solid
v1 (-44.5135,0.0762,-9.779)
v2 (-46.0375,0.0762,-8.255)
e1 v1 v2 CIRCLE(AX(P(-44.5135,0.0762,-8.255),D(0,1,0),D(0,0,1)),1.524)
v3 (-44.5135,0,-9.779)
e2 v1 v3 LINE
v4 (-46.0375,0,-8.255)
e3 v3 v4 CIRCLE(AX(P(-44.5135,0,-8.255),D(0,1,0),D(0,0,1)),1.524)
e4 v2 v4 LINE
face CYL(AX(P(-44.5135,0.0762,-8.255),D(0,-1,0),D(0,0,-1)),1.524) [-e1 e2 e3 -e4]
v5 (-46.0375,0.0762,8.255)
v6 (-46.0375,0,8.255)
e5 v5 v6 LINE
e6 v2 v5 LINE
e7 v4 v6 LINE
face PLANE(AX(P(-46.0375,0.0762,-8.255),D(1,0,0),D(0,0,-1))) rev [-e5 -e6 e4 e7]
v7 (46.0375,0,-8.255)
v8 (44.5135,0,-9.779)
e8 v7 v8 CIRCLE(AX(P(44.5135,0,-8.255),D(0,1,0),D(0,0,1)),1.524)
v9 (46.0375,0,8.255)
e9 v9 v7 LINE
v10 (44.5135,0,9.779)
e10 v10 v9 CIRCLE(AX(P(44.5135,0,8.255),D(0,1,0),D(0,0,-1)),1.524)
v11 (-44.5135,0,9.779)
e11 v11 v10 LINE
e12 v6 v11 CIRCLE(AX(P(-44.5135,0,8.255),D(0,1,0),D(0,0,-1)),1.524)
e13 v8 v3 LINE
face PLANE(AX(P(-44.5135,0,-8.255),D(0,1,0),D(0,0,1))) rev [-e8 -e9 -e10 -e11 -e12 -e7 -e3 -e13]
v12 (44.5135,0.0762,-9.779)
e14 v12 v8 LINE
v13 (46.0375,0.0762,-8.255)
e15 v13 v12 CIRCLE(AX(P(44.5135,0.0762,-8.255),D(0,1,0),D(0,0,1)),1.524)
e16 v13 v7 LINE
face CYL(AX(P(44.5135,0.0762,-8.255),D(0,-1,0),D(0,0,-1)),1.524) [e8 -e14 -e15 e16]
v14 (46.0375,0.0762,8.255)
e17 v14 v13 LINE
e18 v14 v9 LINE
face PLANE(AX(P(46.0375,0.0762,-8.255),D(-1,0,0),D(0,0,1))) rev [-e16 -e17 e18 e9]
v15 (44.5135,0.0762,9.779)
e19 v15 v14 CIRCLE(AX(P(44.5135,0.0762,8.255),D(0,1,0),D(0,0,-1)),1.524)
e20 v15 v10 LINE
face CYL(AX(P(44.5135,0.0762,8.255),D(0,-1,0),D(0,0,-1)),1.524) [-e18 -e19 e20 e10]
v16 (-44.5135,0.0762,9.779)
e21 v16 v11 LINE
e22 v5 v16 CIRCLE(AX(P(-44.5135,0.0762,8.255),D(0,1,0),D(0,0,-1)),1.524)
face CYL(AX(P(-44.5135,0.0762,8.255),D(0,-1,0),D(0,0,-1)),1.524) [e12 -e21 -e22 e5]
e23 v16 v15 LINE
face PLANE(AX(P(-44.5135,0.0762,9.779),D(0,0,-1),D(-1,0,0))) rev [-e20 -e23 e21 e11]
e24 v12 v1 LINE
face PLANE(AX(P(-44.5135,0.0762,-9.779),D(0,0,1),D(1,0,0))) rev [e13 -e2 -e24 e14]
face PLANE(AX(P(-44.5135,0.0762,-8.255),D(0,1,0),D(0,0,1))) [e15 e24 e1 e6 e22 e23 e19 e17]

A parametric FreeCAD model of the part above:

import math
import FreeCAD as App
import Part
import Sketcher

V = App.Vector
Q = App.Units.Quantity

doc = App.newDocument("Part")
body = doc.addObject("PartDesign::Body", "Body")

sketch1 = body.newObject("Sketcher::SketchObject", "Sketch")
sketch1.AttachmentSupport = (doc.getObject("XZ_Plane"), [""])
sketch1.MapMode = "FlatFace"
sketch1.addGeometry(Part.LineSegment(V(44.5, -9.8, 0), V(-44.5, -9.8, 0)), False)
sketch1.addGeometry(Part.ArcOfCircle(Part.Circle(V(-44.5, -8.3, 0), V(0, 0, 1), 1.5), math.radians(180), math.radians(270)), False)
sketch1.addGeometry(Part.LineSegment(V(-46, -8.3, 0), V(-46, 8.3, 0)), False)
sketch1.addGeometry(Part.ArcOfCircle(Part.Circle(V(-44.5, 8.3, 0), V(0, 0, 1), 1.5), math.radians(90), math.radians(180)), False)
sketch1.addGeometry(Part.LineSegment(V(-44.5, 9.8, 0), V(44.5, 9.8, 0)), False)
sketch1.addGeometry(Part.ArcOfCircle(Part.Circle(V(44.5, 8.3, 0), V(0, 0, 1), 1.5), math.radians(0), math.radians(90)), False)
sketch1.addGeometry(Part.LineSegment(V(46, 8.3, 0), V(46, -8.3, 0)), False)
sketch1.addGeometry(Part.ArcOfCircle(Part.Circle(V(44.5, -8.3, 0), V(0, 0, 1), 1.5), math.radians(-90), math.radians(0)), False)
sketch1.addConstraint(Sketcher.Constraint("Tangent", 0, 2, 1, 2))
sketch1.addConstraint(Sketcher.Constraint("Tangent", 1, 1, 2, 1))
sketch1.addConstraint(Sketcher.Constraint("Tangent", 2, 2, 3, 2))
sketch1.addConstraint(Sketcher.Constraint("Tangent", 3, 1, 4, 1))
sketch1.addConstraint(Sketcher.Constraint("Tangent", 4, 2, 5, 2))
sketch1.addConstraint(Sketcher.Constraint("Tangent", 5, 1, 6, 1))
sketch1.addConstraint(Sketcher.Constraint("Tangent", 6, 2, 7, 2))
sketch1.addConstraint(Sketcher.Constraint("Tangent", 7, 1, 0, 1))
sketch1.addConstraint(Sketcher.Constraint("Horizontal", 0))
sketch1.addConstraint(Sketcher.Constraint("Vertical", 2))
sketch1.addConstraint(Sketcher.Constraint("Horizontal", 4))
sketch1.addConstraint(Sketcher.Constraint("Vertical", 6))
sketch1.addConstraint(Sketcher.Constraint("Equal", 1, 3))
sketch1.addConstraint(Sketcher.Constraint("Equal", 3, 5))
sketch1.addConstraint(Sketcher.Constraint("Equal", 5, 7))
sketch1.addConstraint(Sketcher.Constraint("Symmetric", 1, 3, 5, 3, -1, 1))
sketch1.addConstraint(Sketcher.Constraint("Radius", 1, Q("0.06 in")))
sketch1.addConstraint(Sketcher.Constraint("DistanceY", 2, 1, 2, 2, Q("0.65 in")))
sketch1.addConstraint(Sketcher.Constraint("DistanceX", 0, 2, 0, 1, Q("3.505 in")))
pad1 = body.newObject("PartDesign::Pad", "Pad")
pad1.Profile = sketch1
pad1.Length = Q("0.003 in")
pad1.Reversed = True

doc.recompute()
